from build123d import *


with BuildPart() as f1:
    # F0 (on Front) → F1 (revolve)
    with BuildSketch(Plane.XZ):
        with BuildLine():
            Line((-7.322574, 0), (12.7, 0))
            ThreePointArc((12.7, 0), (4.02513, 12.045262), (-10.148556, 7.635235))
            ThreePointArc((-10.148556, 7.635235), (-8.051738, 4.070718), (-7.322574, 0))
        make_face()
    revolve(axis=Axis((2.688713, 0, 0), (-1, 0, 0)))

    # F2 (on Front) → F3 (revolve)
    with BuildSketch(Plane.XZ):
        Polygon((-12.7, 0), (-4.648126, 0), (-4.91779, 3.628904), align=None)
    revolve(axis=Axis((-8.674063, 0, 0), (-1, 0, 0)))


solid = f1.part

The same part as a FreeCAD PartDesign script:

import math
import FreeCAD as App
import Part
import Sketcher

V = App.Vector
Q = App.Units.Quantity

doc = App.newDocument("Part")
body = doc.addObject("PartDesign::Body", "Body")

# Sketch on XZ plane
sketch1 = body.newObject("Sketcher::SketchObject", "Sketch")
sketch1.AttachmentSupport = (doc.getObject("XZ_Plane"), [""])
sketch1.MapMode = "FlatFace"
sketch1.addGeometry(Part.LineSegment(V(-7, 0, 0), V(13, 0, 0)), False)
sketch1.addGeometry(Part.ArcOfCircle(Part.Circle(V(0, 0, 0), V(0, 0, 1), 13), math.radians(0), math.radians(143)), False)
sketch1.addGeometry(Part.ArcOfCircle(Part.Circle(V(-19, 0, 0), V(0, 0, 1), 12), math.radians(0), math.radians(41)), False)
sketch1.addConstraint(Sketcher.Constraint("Coincident", 0, 2, 1, 1))
sketch1.addConstraint(Sketcher.Constraint("Coincident", 1, 2, 2, 2))
sketch1.addConstraint(Sketcher.Constraint("Coincident", 2, 1, 0, 1))
sketch1.addConstraint(Sketcher.Constraint("Horizontal", 0))
sketch1.addConstraint(Sketcher.Constraint("Coincident", 1, 3, -1, 1))
sketch1.addConstraint(Sketcher.Constraint("PointOnObject", 2, 3, -1))
sketch1.addConstraint(Sketcher.Constraint("PointOnObject", 0, 2, -1))
sketch1.addConstraint(Sketcher.Constraint("Radius", 1, Q("0.5 in")))
sketch1.addConstraint(Sketcher.Constraint("DistanceX", 2, 3, -1, 1, Q("0.7500002 in")))
sketch1.addConstraint(Sketcher.Constraint("Radius", 2, Q("11.727431 mm")))
revolution = body.newObject("PartDesign::Revolution", "Revolution")
revolution.Profile = sketch1
revolution.ReferenceAxis = (sketch1, ["H_Axis"])
revolution.Angle = 360

# Sketch on XZ plane
sketch2 = body.newObject("Sketcher::SketchObject", "Sketch001")
sketch2.AttachmentSupport = (doc.getObject("XZ_Plane"), [""])
sketch2.MapMode = "FlatFace"
sketch2.addGeometry(Part.LineSegment(V(-12.7, 0, 0), V(-4.6, 0, 0)), False)
sketch2.addGeometry(Part.LineSegment(V(-4.6, 0, 0), V(-4.9, 3.6, 0)), False)
sketch2.addGeometry(Part.LineSegment(V(-4.9, 3.6, 0), V(-12.7, 0, 0)), False)
sketch2.addConstraint(Sketcher.Constraint("Coincident", 0, 2, 1, 1))
sketch2.addConstraint(Sketcher.Constraint("Coincident", 1, 2, 2, 1))
sketch2.addConstraint(Sketcher.Constraint("Coincident", 2, 2, 0, 1))
sketch2.addConstraint(Sketcher.Constraint("Horizontal", 0))
sketch2.addConstraint(Sketcher.Constraint("PointOnObject", 0, 2, -1))
sketch2.addConstraint(Sketcher.Constraint("Angle", 2, Q("-155.000001 deg")))
sketch2.addConstraint(Sketcher.Constraint("DistanceX", 2, 2, -1, 1, Q("0.5 in")))
sketch2.addConstraint(Sketcher.Constraint("Distance", 1, Q("3.63891 mm")))
sketch2.addConstraint(Sketcher.Constraint("Distance", 2, Q("8.586719 mm")))
revolution2 = body.newObject("PartDesign::Revolution", "Revolution001")
revolution2.Profile = sketch2
revolution2.ReferenceAxis = (sketch2, ["H_Axis"])
revolution2.Angle = 360

doc.recompute()
